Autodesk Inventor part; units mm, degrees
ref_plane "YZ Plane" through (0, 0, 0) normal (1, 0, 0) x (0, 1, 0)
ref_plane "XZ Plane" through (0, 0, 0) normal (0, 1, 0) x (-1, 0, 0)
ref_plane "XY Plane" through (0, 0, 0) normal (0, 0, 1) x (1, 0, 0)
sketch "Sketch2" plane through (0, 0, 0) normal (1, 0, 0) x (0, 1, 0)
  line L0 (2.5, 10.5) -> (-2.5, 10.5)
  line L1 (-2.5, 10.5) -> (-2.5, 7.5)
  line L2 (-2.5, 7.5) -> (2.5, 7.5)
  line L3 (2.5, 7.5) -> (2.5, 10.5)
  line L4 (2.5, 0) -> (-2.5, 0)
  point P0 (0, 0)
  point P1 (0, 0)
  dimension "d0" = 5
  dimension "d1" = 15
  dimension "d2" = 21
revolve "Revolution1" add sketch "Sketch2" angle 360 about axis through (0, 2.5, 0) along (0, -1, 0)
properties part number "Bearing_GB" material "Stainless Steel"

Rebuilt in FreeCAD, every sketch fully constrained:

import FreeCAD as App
import Part
import Sketcher
from FreeCAD import Vector
Q = App.Units.Quantity

doc = App.newDocument("Part")
body = doc.addObject("PartDesign::Body", "Body")

sketch1 = doc.addObject("Sketcher::SketchObject", "Sketch")
body.addObject(sketch1)
sketch1.AttachmentSupport = (doc.YZ_Plane, [""])
sketch1.MapMode = "FlatFace"
sketch1.addGeometry(Part.LineSegment(Vector(2.5, 7.5, 0), Vector(2.5, 10.5, 0)), False)
sketch1.addGeometry(Part.LineSegment(Vector(2.5, 10.5, 0), Vector(-2.5, 10.5, 0)), False)
sketch1.addGeometry(Part.LineSegment(Vector(-2.5, 10.5, 0), Vector(-2.5, 7.5, 0)), False)
sketch1.addGeometry(Part.LineSegment(Vector(-2.5, 7.5, 0), Vector(2.5, 7.5, 0)), False)
sketch1.addConstraint(Sketcher.Constraint("Coincident", 0, 2, 1, 1))
sketch1.addConstraint(Sketcher.Constraint("Coincident", 1, 2, 2, 1))
sketch1.addConstraint(Sketcher.Constraint("Coincident", 2, 2, 3, 1))
sketch1.addConstraint(Sketcher.Constraint("Coincident", 3, 2, 0, 1))
sketch1.addConstraint(Sketcher.Constraint("Vertical", 0))
sketch1.addConstraint(Sketcher.Constraint("Horizontal", 1))
sketch1.addConstraint(Sketcher.Constraint("Vertical", 2))
sketch1.addConstraint(Sketcher.Constraint("Horizontal", 3))
sketch1.addConstraint(Sketcher.Constraint("DistanceX", 1, 2, 1, 1, Q("5 mm")))
sketch1.addConstraint(Sketcher.Constraint("DistanceY", 0, 1, 0, 2, Q("3 mm")))
sketch1.addConstraint(Sketcher.Constraint("DistanceX", -1, 1, 0, 2, Q("2.5 mm")))
sketch1.addConstraint(Sketcher.Constraint("DistanceY", -1, 1, 0, 2, Q("10.5 mm")))
revolution = doc.addObject("PartDesign::Revolution", "Revolution")
body.addObject(revolution)
revolution.Profile = sketch1
revolution.ReferenceAxis = (sketch1, ["H_Axis"])
revolution.Angle = 360

doc.recompute()
